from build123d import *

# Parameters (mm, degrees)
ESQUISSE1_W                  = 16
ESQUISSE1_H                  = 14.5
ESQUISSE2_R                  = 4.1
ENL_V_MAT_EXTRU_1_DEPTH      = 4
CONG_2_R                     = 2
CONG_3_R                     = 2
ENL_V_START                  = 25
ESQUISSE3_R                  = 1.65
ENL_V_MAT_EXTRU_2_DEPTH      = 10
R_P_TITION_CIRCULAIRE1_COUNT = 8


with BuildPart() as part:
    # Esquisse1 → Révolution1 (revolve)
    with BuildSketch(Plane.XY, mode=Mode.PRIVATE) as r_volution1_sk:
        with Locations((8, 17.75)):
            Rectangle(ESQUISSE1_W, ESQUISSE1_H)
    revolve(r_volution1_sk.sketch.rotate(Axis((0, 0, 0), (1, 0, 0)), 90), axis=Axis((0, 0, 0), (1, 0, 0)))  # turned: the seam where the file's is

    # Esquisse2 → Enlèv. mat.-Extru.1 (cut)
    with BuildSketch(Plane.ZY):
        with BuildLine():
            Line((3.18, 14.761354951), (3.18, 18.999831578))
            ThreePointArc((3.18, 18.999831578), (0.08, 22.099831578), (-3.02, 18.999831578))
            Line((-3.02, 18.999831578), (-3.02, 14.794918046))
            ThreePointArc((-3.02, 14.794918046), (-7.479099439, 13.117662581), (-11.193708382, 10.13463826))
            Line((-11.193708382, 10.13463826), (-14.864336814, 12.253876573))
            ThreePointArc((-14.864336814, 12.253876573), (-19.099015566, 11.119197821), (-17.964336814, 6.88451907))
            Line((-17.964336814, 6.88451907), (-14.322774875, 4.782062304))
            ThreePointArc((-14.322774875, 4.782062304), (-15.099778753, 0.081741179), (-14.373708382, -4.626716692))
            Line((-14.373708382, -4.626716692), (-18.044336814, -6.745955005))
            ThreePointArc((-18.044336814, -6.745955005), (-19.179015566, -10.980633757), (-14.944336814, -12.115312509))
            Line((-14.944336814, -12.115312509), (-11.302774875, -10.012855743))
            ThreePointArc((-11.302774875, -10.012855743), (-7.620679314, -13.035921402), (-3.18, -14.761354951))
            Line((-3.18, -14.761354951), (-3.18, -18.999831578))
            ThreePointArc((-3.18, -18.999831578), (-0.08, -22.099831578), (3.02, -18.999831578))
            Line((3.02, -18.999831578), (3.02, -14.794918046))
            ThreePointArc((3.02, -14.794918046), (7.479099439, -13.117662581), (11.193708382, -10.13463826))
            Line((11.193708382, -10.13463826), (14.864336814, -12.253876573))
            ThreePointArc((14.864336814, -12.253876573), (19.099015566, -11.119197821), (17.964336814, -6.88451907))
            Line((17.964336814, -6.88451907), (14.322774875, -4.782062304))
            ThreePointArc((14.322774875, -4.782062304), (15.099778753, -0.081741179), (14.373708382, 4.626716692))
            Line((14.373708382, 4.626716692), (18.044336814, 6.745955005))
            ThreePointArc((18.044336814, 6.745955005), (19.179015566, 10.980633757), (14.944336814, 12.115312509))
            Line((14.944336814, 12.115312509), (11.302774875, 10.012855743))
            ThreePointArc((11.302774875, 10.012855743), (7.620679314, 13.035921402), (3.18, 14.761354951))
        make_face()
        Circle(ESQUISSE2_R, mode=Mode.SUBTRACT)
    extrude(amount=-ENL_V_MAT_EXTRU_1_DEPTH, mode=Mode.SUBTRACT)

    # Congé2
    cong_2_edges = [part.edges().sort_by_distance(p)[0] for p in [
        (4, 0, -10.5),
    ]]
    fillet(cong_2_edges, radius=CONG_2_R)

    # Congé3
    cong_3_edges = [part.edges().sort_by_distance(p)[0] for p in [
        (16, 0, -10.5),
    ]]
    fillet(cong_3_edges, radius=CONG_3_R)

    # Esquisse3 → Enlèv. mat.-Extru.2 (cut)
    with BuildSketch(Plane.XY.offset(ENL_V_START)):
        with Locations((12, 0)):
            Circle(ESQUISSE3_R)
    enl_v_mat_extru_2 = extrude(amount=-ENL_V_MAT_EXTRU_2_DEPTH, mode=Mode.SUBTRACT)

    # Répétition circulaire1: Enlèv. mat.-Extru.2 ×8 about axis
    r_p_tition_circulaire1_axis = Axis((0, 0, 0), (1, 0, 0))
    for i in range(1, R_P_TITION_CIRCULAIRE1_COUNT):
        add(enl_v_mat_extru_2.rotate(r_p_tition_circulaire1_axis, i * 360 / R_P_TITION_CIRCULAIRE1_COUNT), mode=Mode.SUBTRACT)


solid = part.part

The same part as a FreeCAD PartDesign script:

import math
import FreeCAD as App
import Part
import Sketcher

V = App.Vector
Q = App.Units.Quantity


def edges_at(feature, points):
    """Names of the edges that pass closest to the given points."""
    edges = feature.Shape.Edges
    near = lambda p: min(range(len(edges)), key=lambda i: edges[i].distToShape(Part.Vertex(*p))[0])
    return sorted({f"Edge{near(p) + 1}" for p in points})


def add_polygon(sketch, points):
    """Adds a closed chain of lines whose ends are joined by coincident constraints."""
    first, n = sketch.GeometryCount, len(points)
    for a, b in zip(points, points[1:] + points[:1]):
        sketch.addGeometry(Part.LineSegment(App.Vector(*a, 0), App.Vector(*b, 0)), False)
    for i in range(n):
        sketch.addConstraint(Sketcher.Constraint("Coincident", first + i, 2, first + (i + 1) % n, 1))

doc = App.newDocument("Part")
body = doc.addObject("PartDesign::Body", "Body")

# Sketch on XY plane
sketch1 = body.newObject("Sketcher::SketchObject", "Sketch")
sketch1.AttachmentSupport = (doc.getObject("XY_Plane"), [""])
sketch1.MapMode = "FlatFace"
add_polygon(sketch1, [(0, 25), (0, 10), (16, 10), (16, 25)])  # lines 0-3
sketch1.addConstraint(Sketcher.Constraint("Vertical", 0))
sketch1.addConstraint(Sketcher.Constraint("Horizontal", 1))
sketch1.addConstraint(Sketcher.Constraint("Vertical", 2))
sketch1.addConstraint(Sketcher.Constraint("Horizontal", 3))
sketch1.addConstraint(Sketcher.Constraint("PointOnObject", 0, 2, -2))
sketch1.addConstraint(Sketcher.Constraint("DistanceX", 1, 1, 1, 2, 16.0))
sketch1.addConstraint(Sketcher.Constraint("DistanceY", 0, 2, 0, 1, 14.5))
sketch1.addConstraint(Sketcher.Constraint("DistanceY", -1, 1, 2, 2, 25.0))
revolution = body.newObject("PartDesign::Revolution", "Revolution")
revolution.Profile = sketch1
revolution.ReferenceAxis = (sketch1, ["H_Axis"])
revolution.Angle = 360

# Sketch on YZ plane
sketch2 = body.newObject("Sketcher::SketchObject", "Sketch001")
sketch2.AttachmentSupport = (doc.getObject("YZ_Plane"), [""])
sketch2.MapMode = "FlatFace"
sketch2.addGeometry(Part.LineSegment(V(14.8, 3.2, 0), V(19, 3.2, 0)), False)
sketch2.addGeometry(Part.ArcOfCircle(Part.Circle(V(19, 0.1, 0), V(0, 0, 1), 3.1), math.radians(-90), math.radians(90)), False)
sketch2.addGeometry(Part.LineSegment(V(19, -3, 0), V(14.8, -3, 0)), False)
sketch2.addGeometry(Part.ArcOfCircle(Part.Circle(V(0, 0, 0), V(0, 0, 1), 15.1), math.radians(-48), math.radians(-12)), False)
sketch2.addGeometry(Part.LineSegment(V(10.1, -11.2, 0), V(12.3, -14.9, 0)), False)
sketch2.addGeometry(Part.ArcOfCircle(Part.Circle(V(9.6, -16.4, 0), V(0, 0, 1), 3.1), math.radians(-150), math.radians(30)), False)
sketch2.addGeometry(Part.LineSegment(V(6.9, -18, 0), V(4.8, -14.3, 0)), False)
sketch2.addGeometry(Part.ArcOfCircle(Part.Circle(V(0, 0, 0), V(0, 0, 1), 15.1), math.radians(-108), math.radians(-72)), False)
sketch2.addGeometry(Part.LineSegment(V(-4.6, -14.4, 0), V(-6.7, -18, 0)), False)
sketch2.addGeometry(Part.ArcOfCircle(Part.Circle(V(-9.4, -16.5, 0), V(0, 0, 1), 3.1), math.radians(150), math.radians(330)), False)
sketch2.addGeometry(Part.LineSegment(V(-12.1, -14.9, 0), V(-10, -11.3, 0)), False)
sketch2.addGeometry(Part.ArcOfCircle(Part.Circle(V(0, 0, 0), V(0, 0, 1), 15.1), math.radians(-168), math.radians(-132)), False)
sketch2.addGeometry(Part.LineSegment(V(-14.8, -3.2, 0), V(-19, -3.2, 0)), False)
sketch2.addGeometry(Part.ArcOfCircle(Part.Circle(V(-19, -0.1, 0), V(0, 0, 1), 3.1), math.radians(90), math.radians(270)), False)
sketch2.addGeometry(Part.LineSegment(V(-19, 3, 0), V(-14.8, 3, 0)), False)
sketch2.addGeometry(Part.ArcOfCircle(Part.Circle(V(0, 0, 0), V(0, 0, 1), 15.1), math.radians(132), math.radians(168)), False)
sketch2.addGeometry(Part.LineSegment(V(-10.1, 11.2, 0), V(-12.3, 14.9, 0)), False)
sketch2.addGeometry(Part.ArcOfCircle(Part.Circle(V(-9.6, 16.4, 0), V(0, 0, 1), 3.1), math.radians(30), math.radians(210)), False)
sketch2.addGeometry(Part.LineSegment(V(-6.9, 18, 0), V(-4.8, 14.3, 0)), False)
sketch2.addGeometry(Part.ArcOfCircle(Part.Circle(V(0, 0, 0), V(0, 0, 1), 15.1), math.radians(72), math.radians(108)), False)
sketch2.addGeometry(Part.LineSegment(V(4.6, 14.4, 0), V(6.7, 18, 0)), False)
sketch2.addGeometry(Part.ArcOfCircle(Part.Circle(V(9.4, 16.5, 0), V(0, 0, 1), 3.1), math.radians(-30), math.radians(150)), False)
sketch2.addGeometry(Part.LineSegment(V(12.1, 14.9, 0), V(10, 11.3, 0)), False)
sketch2.addGeometry(Part.ArcOfCircle(Part.Circle(V(0, 0, 0), V(0, 0, 1), 15.1), math.radians(12), math.radians(48)), False)
sketch2.addGeometry(Part.Circle(V(0, 0, 0), V(0, 0, 1), 4.1), False)
sketch2.addConstraint(Sketcher.Constraint("Tangent", 0, 2, 1, 2))
sketch2.addConstraint(Sketcher.Constraint("Tangent", 1, 1, 2, 1))
sketch2.addConstraint(Sketcher.Constraint("Coincident", 2, 2, 3, 2))
sketch2.addConstraint(Sketcher.Constraint("Coincident", 3, 1, 4, 1))
sketch2.addConstraint(Sketcher.Constraint("Tangent", 4, 2, 5, 2))
sketch2.addConstraint(Sketcher.Constraint("Tangent", 5, 1, 6, 1))
sketch2.addConstraint(Sketcher.Constraint("Coincident", 6, 2, 7, 2))
sketch2.addConstraint(Sketcher.Constraint("Coincident", 7, 1, 8, 1))
sketch2.addConstraint(Sketcher.Constraint("Tangent", 8, 2, 9, 2))
sketch2.addConstraint(Sketcher.Constraint("Tangent", 9, 1, 10, 1))
sketch2.addConstraint(Sketcher.Constraint("Coincident", 10, 2, 11, 2))
sketch2.addConstraint(Sketcher.Constraint("Coincident", 11, 1, 12, 1))
sketch2.addConstraint(Sketcher.Constraint("Tangent", 12, 2, 13, 2))
sketch2.addConstraint(Sketcher.Constraint("Tangent", 13, 1, 14, 1))
sketch2.addConstraint(Sketcher.Constraint("Coincident", 14, 2, 15, 2))
sketch2.addConstraint(Sketcher.Constraint("Coincident", 15, 1, 16, 1))
sketch2.addConstraint(Sketcher.Constraint("Tangent", 16, 2, 17, 2))
sketch2.addConstraint(Sketcher.Constraint("Tangent", 17, 1, 18, 1))
sketch2.addConstraint(Sketcher.Constraint("Coincident", 18, 2, 19, 2))
sketch2.addConstraint(Sketcher.Constraint("Coincident", 19, 1, 20, 1))
sketch2.addConstraint(Sketcher.Constraint("Tangent", 20, 2, 21, 2))
sketch2.addConstraint(Sketcher.Constraint("Tangent", 21, 1, 22, 1))
sketch2.addConstraint(Sketcher.Constraint("Coincident", 22, 2, 23, 2))
sketch2.addConstraint(Sketcher.Constraint("Coincident", 23, 1, 0, 1))
sketch2.addConstraint(Sketcher.Constraint("Horizontal", 0))
sketch2.addConstraint(Sketcher.Constraint("Horizontal", 2))
sketch2.addConstraint(Sketcher.Constraint("Horizontal", 12))
sketch2.addConstraint(Sketcher.Constraint("Horizontal", 14))
sketch2.addConstraint(Sketcher.Constraint("Coincident", 3, 3, -1, 1))
sketch2.addConstraint(Sketcher.Constraint("Coincident", 7, 3, -1, 1))
sketch2.addConstraint(Sketcher.Constraint("Coincident", 11, 3, -1, 1))
sketch2.addConstraint(Sketcher.Constraint("Coincident", 15, 3, -1, 1))
sketch2.addConstraint(Sketcher.Constraint("Coincident", 19, 3, -1, 1))
sketch2.addConstraint(Sketcher.Constraint("Coincident", 23, 3, -1, 1))
sketch2.addConstraint(Sketcher.Constraint("Coincident", 24, 3, -1, 1))
sketch2.addConstraint(Sketcher.Constraint("Equal", 1, 5))
sketch2.addConstraint(Sketcher.Constraint("Equal", 3, 7))
sketch2.addConstraint(Sketcher.Constraint("Equal", 5, 9))
sketch2.addConstraint(Sketcher.Constraint("Equal", 7, 11))
sketch2.addConstraint(Sketcher.Constraint("Equal", 9, 13))
sketch2.addConstraint(Sketcher.Constraint("Equal", 11, 15))
sketch2.addConstraint(Sketcher.Constraint("Equal", 13, 17))
sketch2.addConstraint(Sketcher.Constraint("Equal", 15, 19))
sketch2.addConstraint(Sketcher.Constraint("Equal", 17, 21))
sketch2.addConstraint(Sketcher.Constraint("Equal", 19, 23))
sketch2.addConstraint(Sketcher.Constraint("Symmetric", 1, 3, 13, 3, -1, 1))
sketch2.addConstraint(Sketcher.Constraint("Symmetric", 5, 3, 17, 3, -1, 1))
sketch2.addConstraint(Sketcher.Constraint("Symmetric", 9, 3, 21, 3, -1, 1))
sketch2.addConstraint(Sketcher.Constraint("Parallel", 4, 6))
sketch2.addConstraint(Sketcher.Constraint("Parallel", 8, 10))
sketch2.addConstraint(Sketcher.Constraint("Parallel", 6, 16))
sketch2.addConstraint(Sketcher.Constraint("Parallel", 16, 18))
sketch2.addConstraint(Sketcher.Constraint("Parallel", 10, 20))
sketch2.addConstraint(Sketcher.Constraint("Parallel", 20, 22))
sketch2.addConstraint(Sketcher.Constraint("Equal", 4, 8))
sketch2.addConstraint(Sketcher.Constraint("Equal", 6, 10))
sketch2.addConstraint(Sketcher.Constraint("Diameter", 24, 8.2))
sketch2.addConstraint(Sketcher.Constraint("Radius", 1, 3.1))
sketch2.addConstraint(Sketcher.Constraint("Radius", 3, 15.1))
sketch2.addConstraint(Sketcher.Constraint("Angle", 4, Q("-60 deg")))
sketch2.addConstraint(Sketcher.Constraint("Angle", 8, Q("-120 deg")))
sketch2.addConstraint(Sketcher.Constraint("DistanceY", -1, 1, 1, 3, 0.08))
sketch2.addConstraint(Sketcher.Constraint("DistanceY", 9, 3, 5, 3, 0.08))
sketch2.addConstraint(Sketcher.Constraint("DistanceX", 5, 1, 2, 2, 7.910399))
sketch2.addConstraint(Sketcher.Constraint("DistanceX", 0, 1, 0, 2, 4.238477))
pocket1 = body.newObject("PartDesign::Pocket", "Pocket")
pocket1.Profile = sketch2
pocket1.Length = 4
pocket1.Reversed = True
doc.recompute()

fillet = body.newObject("PartDesign::Fillet", "Fillet")
fillet.Base = (pocket1, edges_at(pocket1, [(4, 0, -10.5)]))
fillet.Radius = 2
doc.recompute()

fillet2 = body.newObject("PartDesign::Fillet", "Fillet001")
fillet2.Base = (fillet, edges_at(fillet, [(16, 0, -10.5)]))
fillet2.Radius = 2

# Sketch on XY plane
sketch3 = body.newObject("Sketcher::SketchObject", "Sketch002")
sketch3.AttachmentSupport = (doc.getObject("XY_Plane"), [""])
sketch3.MapMode = "FlatFace"
sketch3.AttachmentOffset = App.Placement(V(0, 0, 25), App.Rotation())
sketch3.addGeometry(Part.Circle(V(12, 0, 0), V(0, 0, 1), 1.6), False)
sketch3.addConstraint(Sketcher.Constraint("PointOnObject", 0, 3, -1))
sketch3.addConstraint(Sketcher.Constraint("Diameter", 0, 3.3))
sketch3.addConstraint(Sketcher.Constraint("DistanceX", -1, 1, 0, 3, 12.0))
pocket2 = body.newObject("PartDesign::Pocket", "Pocket001")
pocket2.Profile = sketch3
pocket2.Length = 10
doc.recompute()

polarpattern = body.newObject("PartDesign::PolarPattern", "PolarPattern")
polarpattern.Originals = [pocket2]
polarpattern.Axis = (doc.getObject("X_Axis"), [""])
polarpattern.Angle = 360
polarpattern.Occurrences = 8
body.Tip = polarpattern

doc.recompute()
